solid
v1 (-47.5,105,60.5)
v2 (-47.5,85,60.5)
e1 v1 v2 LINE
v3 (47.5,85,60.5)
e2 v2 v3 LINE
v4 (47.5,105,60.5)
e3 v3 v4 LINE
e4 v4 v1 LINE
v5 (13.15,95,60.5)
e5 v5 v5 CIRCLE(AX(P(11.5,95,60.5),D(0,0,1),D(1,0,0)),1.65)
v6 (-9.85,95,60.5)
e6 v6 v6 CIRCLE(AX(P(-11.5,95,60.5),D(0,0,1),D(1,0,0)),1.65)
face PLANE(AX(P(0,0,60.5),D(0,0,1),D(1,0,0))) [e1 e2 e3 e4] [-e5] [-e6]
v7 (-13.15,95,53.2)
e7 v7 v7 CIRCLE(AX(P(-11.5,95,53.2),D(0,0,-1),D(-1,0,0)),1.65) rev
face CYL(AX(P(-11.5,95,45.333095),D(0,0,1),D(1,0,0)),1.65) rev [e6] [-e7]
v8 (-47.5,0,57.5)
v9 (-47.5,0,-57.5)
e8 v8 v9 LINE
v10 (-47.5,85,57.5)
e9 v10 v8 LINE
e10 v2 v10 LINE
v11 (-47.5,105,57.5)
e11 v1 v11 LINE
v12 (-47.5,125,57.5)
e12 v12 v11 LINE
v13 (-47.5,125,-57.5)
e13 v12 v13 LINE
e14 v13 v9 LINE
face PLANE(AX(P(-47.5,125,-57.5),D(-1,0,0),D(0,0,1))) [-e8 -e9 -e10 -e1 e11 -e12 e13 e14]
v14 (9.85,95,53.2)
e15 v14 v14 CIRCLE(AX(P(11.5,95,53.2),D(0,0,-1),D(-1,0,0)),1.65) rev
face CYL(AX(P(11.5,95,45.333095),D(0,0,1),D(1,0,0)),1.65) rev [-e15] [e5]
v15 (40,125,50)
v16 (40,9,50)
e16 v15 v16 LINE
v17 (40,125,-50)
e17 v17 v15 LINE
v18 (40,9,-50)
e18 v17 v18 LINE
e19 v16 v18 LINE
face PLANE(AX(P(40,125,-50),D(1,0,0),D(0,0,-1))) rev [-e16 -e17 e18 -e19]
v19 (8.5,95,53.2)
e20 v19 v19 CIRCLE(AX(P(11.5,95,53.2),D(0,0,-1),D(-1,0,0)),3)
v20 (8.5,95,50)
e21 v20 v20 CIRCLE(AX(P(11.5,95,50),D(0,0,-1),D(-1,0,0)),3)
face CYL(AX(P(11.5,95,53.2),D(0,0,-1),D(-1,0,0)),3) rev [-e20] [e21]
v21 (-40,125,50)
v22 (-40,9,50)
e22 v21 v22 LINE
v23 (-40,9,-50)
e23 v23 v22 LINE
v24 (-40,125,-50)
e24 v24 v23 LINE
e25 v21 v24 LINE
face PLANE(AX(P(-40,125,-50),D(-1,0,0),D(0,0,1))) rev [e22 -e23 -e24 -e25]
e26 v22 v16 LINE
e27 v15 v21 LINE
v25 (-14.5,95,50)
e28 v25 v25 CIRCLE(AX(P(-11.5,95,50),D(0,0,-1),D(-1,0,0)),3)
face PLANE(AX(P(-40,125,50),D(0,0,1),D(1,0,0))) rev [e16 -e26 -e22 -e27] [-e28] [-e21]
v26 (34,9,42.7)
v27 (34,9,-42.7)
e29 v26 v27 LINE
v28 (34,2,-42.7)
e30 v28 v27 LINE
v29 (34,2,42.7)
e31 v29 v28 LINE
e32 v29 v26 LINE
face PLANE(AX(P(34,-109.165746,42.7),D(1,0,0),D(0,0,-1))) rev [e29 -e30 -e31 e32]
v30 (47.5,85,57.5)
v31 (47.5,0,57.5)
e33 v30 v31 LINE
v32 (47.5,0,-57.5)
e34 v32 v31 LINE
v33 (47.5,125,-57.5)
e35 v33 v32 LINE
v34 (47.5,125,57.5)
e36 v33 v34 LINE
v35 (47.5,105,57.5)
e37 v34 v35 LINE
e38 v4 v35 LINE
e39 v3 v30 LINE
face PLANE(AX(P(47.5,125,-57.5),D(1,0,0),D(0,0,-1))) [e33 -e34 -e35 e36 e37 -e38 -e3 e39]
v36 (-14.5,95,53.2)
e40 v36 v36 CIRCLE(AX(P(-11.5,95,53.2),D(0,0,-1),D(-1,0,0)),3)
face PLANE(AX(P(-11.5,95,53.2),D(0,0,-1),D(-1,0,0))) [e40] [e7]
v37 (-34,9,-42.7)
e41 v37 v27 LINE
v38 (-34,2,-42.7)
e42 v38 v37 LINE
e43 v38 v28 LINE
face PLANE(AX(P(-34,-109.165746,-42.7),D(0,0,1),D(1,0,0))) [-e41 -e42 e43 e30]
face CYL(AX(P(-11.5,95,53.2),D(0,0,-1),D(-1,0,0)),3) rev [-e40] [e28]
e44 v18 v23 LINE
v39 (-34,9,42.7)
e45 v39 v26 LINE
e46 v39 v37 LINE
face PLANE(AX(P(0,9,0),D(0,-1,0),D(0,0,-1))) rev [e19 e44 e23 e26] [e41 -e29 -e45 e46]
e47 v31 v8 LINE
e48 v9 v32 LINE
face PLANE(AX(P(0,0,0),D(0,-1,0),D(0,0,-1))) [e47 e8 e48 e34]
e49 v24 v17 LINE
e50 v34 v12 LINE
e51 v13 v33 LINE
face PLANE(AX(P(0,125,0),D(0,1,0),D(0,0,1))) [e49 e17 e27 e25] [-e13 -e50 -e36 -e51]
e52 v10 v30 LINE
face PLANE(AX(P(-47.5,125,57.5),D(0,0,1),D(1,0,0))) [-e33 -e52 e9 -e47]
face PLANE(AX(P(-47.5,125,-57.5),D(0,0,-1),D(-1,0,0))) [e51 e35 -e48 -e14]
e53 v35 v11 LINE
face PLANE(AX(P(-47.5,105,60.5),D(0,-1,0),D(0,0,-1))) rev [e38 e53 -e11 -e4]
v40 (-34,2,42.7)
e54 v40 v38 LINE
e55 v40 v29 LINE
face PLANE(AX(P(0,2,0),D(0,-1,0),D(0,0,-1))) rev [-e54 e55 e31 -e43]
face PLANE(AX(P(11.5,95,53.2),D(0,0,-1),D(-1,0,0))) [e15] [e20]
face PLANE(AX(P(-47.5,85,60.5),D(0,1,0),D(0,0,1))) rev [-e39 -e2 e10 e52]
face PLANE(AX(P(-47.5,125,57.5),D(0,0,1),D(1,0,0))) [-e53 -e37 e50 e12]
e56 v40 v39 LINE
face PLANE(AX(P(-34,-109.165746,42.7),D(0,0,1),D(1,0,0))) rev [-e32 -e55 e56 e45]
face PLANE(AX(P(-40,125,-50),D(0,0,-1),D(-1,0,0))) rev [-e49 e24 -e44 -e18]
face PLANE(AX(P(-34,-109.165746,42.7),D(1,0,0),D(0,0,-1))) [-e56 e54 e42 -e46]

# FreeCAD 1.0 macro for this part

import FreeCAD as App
import Part
import Sketcher
Q = App.Units.Quantity


def add_polygon(sketch, points):
    """Adds a closed chain of lines whose ends are joined by coincident constraints."""
    first, n = sketch.GeometryCount, len(points)
    for a, b in zip(points, points[1:] + points[:1]):
        sketch.addGeometry(Part.LineSegment(App.Vector(*a, 0), App.Vector(*b, 0)), False)
    for i in range(n):
        sketch.addConstraint(Sketcher.Constraint("Coincident", first + i, 2, first + (i + 1) % n, 1))

doc = App.newDocument("Part")
params = doc.addObject("Spreadsheet::Sheet", "Params")
for row, (alias, value) in enumerate([
    ("sketch1_width", "80 mm"),
    ("sketch1_height", "100 mm"),
    ("pad1_length", "9 mm"),
    ("sketch2_width", "68 mm"),
    ("sketch2_height", "85.4 mm"),
    ("pocket1_length", "7 mm"),
    ("sketch3_width", "95 mm"),
    ("sketch3_width2", "80 mm"),
    ("sketch3_height", "115 mm"),
    ("sketch3_height2", "100 mm"),
    ("pad2_length", "125 mm"),
    ("sketch4_width", "95 mm"),
    ("sketch4_height", "20 mm"),
    ("pad3_length", "3 mm"),
    ("sketch5_diameter", "3.3 mm"),
    ("pocket2_length", "10.5 mm"),
    ("sketch6_diameter", "6 mm"),
    ("pocket3_length", "3.2 mm"),
], start=1):
    params.set(f"A{row}", alias)
    params.set(f"B{row}", "=" + value)
    params.setAlias(f"B{row}", alias)

body = doc.addObject("PartDesign::Body", "Body")

sketch1 = doc.addObject("Sketcher::SketchObject", "Sketch")
body.addObject(sketch1)
sketch1.AttachmentSupport = (doc.XZ_Plane, [""])
sketch1.MapMode = "FlatFace"
add_polygon(sketch1, [(-40, -50), (-40, 50), (40, 50), (40, -50)])
sketch1.addConstraint([
    Sketcher.Constraint("Vertical", 0),
    Sketcher.Constraint("Horizontal", 1),
    Sketcher.Constraint("Vertical", 2),
    Sketcher.Constraint("Horizontal", 3),
    Sketcher.Constraint("Symmetric", 0, 2, 2, 2, -1, 1),
    Sketcher.Constraint("DistanceX", 1, 1, 1, 2, Q("80 mm")),
    Sketcher.Constraint("DistanceY", 0, 1, 0, 2, Q("100 mm")),
])
sketch1.setExpression("Constraints[9]", "Params.sketch1_width")
sketch1.setExpression("Constraints[10]", "Params.sketch1_height")
pad1 = doc.addObject("PartDesign::Pad", "Pad")
body.addObject(pad1)
pad1.Profile = sketch1
pad1.setExpression("Length", "Params.pad1_length")
pad1.Reversed = True

sketch2 = doc.addObject("Sketcher::SketchObject", "Sketch001")
body.addObject(sketch2)
sketch2.AttachmentSupport = (doc.XZ_Plane, [""])
sketch2.MapMode = "FlatFace"
sketch2.AttachmentOffset = App.Placement(App.Vector(0, 0, -9), App.Rotation())
add_polygon(sketch2, [(-34, -42.7), (-34, 42.7), (34, 42.7), (34, -42.7)])
sketch2.addConstraint([
    Sketcher.Constraint("Vertical", 0),
    Sketcher.Constraint("Horizontal", 1),
    Sketcher.Constraint("Vertical", 2),
    Sketcher.Constraint("Horizontal", 3),
    Sketcher.Constraint("Symmetric", 0, 2, 2, 2, -1, 1),
    Sketcher.Constraint("DistanceX", 1, 1, 1, 2, Q("68 mm")),
    Sketcher.Constraint("DistanceY", 0, 1, 0, 2, Q("85.4 mm")),
])
sketch2.setExpression("Constraints[9]", "Params.sketch2_width")
sketch2.setExpression("Constraints[10]", "Params.sketch2_height")
pocket1 = doc.addObject("PartDesign::Pocket", "Pocket")
body.addObject(pocket1)
pocket1.Profile = sketch2
pocket1.setExpression("Length", "Params.pocket1_length")
pocket1.Reversed = True

sketch3 = doc.addObject("Sketcher::SketchObject", "Sketch002")
body.addObject(sketch3)
sketch3.AttachmentSupport = (doc.XZ_Plane, [""])
sketch3.MapMode = "FlatFace"
add_polygon(sketch3, [(-47.5, 57.5), (-47.5, -57.5), (47.5, -57.5), (47.5, 57.5)])
add_polygon(sketch3, [(40, -50), (-40, -50), (-40, 50), (40, 50)])
sketch3.addConstraint([
    Sketcher.Constraint("Vertical", 0),
    Sketcher.Constraint("Horizontal", 1),
    Sketcher.Constraint("Vertical", 2),
    Sketcher.Constraint("Horizontal", 3),
    Sketcher.Constraint("Horizontal", 4),
    Sketcher.Constraint("Vertical", 5),
    Sketcher.Constraint("Horizontal", 6),
    Sketcher.Constraint("Vertical", 7),
    Sketcher.Constraint("Symmetric", 0, 2, 2, 2, -1, 1),
    Sketcher.Constraint("Symmetric", 4, 2, 6, 2, -1, 1),
    Sketcher.Constraint("DistanceX", 1, 1, 1, 2, Q("95 mm")),
    Sketcher.Constraint("DistanceX", 4, 2, 4, 1, Q("80 mm")),
    Sketcher.Constraint("DistanceY", 0, 2, 0, 1, Q("115 mm")),
    Sketcher.Constraint("DistanceY", 5, 1, 5, 2, Q("100 mm")),
])
sketch3.setExpression("Constraints[18]", "Params.sketch3_width")
sketch3.setExpression("Constraints[19]", "Params.sketch3_width2")
sketch3.setExpression("Constraints[20]", "Params.sketch3_height")
sketch3.setExpression("Constraints[21]", "Params.sketch3_height2")
pad2 = doc.addObject("PartDesign::Pad", "Pad001")
body.addObject(pad2)
pad2.Profile = sketch3
pad2.setExpression("Length", "Params.pad2_length")
pad2.Reversed = True

sketch4 = doc.addObject("Sketcher::SketchObject", "Sketch003")
body.addObject(sketch4)
sketch4.AttachmentSupport = (doc.XY_Plane, [""])
sketch4.MapMode = "FlatFace"
sketch4.AttachmentOffset = App.Placement(App.Vector(0, 0, 57.5), App.Rotation())
add_polygon(sketch4, [(-47.5, 105), (-47.5, 85), (47.5, 85), (47.5, 105)])
sketch4.addConstraint([
    Sketcher.Constraint("Vertical", 0),
    Sketcher.Constraint("Horizontal", 1),
    Sketcher.Constraint("Vertical", 2),
    Sketcher.Constraint("Horizontal", 3),
    Sketcher.Constraint("DistanceX", 1, 1, 1, 2, Q("95 mm")),
    Sketcher.Constraint("DistanceY", 0, 2, 0, 1, Q("20 mm")),
    Sketcher.Constraint("DistanceY", -1, 1, 0, 2, Q("85 mm")),
    Sketcher.Constraint("DistanceX", 0, 2, -1, 1, Q("47.5 mm")),
])
sketch4.setExpression("Constraints[8]", "Params.sketch4_width")
sketch4.setExpression("Constraints[9]", "Params.sketch4_height")
pad3 = doc.addObject("PartDesign::Pad", "Pad002")
body.addObject(pad3)
pad3.Profile = sketch4
pad3.setExpression("Length", "Params.pad3_length")

sketch5 = doc.addObject("Sketcher::SketchObject", "Sketch004")
body.addObject(sketch5)
sketch5.AttachmentSupport = (doc.XY_Plane, [""])
sketch5.MapMode = "FlatFace"
sketch5.AttachmentOffset = App.Placement(App.Vector(0, 0, 60.5), App.Rotation())
sketch5.addGeometry([
    Part.Circle(App.Vector(-11.5, 95, 0), App.Vector(0, 0, 1), 1.65),
    Part.Circle(App.Vector(11.5, 95, 0), App.Vector(0, 0, 1), 1.65),
], False)
sketch5.addConstraint([
    Sketcher.Constraint("Equal", 0, 1),
    Sketcher.Constraint("Symmetric", 0, 3, 1, 3, -2),
    Sketcher.Constraint("Diameter", 0, Q("3.3 mm")),
    Sketcher.Constraint("DistanceY", -1, 1, 0, 3, Q("95 mm")),
    Sketcher.Constraint("DistanceX", 0, 3, 1, 3, Q("23 mm")),
])
sketch5.setExpression("Constraints[2]", "Params.sketch5_diameter")
pocket2 = doc.addObject("PartDesign::Pocket", "Pocket001")
body.addObject(pocket2)
pocket2.Profile = sketch5
pocket2.setExpression("Length", "Params.pocket2_length")

sketch6 = doc.addObject("Sketcher::SketchObject", "Sketch005")
body.addObject(sketch6)
sketch6.AttachmentSupport = (doc.XY_Plane, [""])
sketch6.MapMode = "FlatFace"
sketch6.AttachmentOffset = App.Placement(App.Vector(0, 0, 50), App.Rotation())
sketch6.addGeometry([
    Part.Circle(App.Vector(11.5, 95, 0), App.Vector(0, 0, 1), 3),
    Part.Circle(App.Vector(-11.5, 95, 0), App.Vector(0, 0, 1), 3),
], False)
sketch6.addConstraint([
    Sketcher.Constraint("Equal", 0, 1),
    Sketcher.Constraint("Symmetric", 0, 3, 1, 3, -2),
    Sketcher.Constraint("Diameter", 0, Q("6 mm")),
    Sketcher.Constraint("DistanceY", -1, 1, 0, 3, Q("95 mm")),
    Sketcher.Constraint("DistanceX", 1, 3, 0, 3, Q("23 mm")),
])
sketch6.setExpression("Constraints[2]", "Params.sketch6_diameter")
pocket3 = doc.addObject("PartDesign::Pocket", "Pocket002")
body.addObject(pocket3)
pocket3.Profile = sketch6
pocket3.setExpression("Length", "Params.pocket3_length")
pocket3.Reversed = True

doc.recompute()
